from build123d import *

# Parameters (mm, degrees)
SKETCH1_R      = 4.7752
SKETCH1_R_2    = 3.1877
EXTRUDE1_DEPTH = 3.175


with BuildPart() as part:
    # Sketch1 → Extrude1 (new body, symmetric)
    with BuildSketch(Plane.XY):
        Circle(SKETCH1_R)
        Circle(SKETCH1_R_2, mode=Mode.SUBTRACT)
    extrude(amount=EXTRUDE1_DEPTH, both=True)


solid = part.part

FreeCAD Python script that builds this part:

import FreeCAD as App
import Part
import Sketcher

V = App.Vector
Q = App.Units.Quantity

doc = App.newDocument("Part")
body = doc.addObject("PartDesign::Body", "Body")

sketch1 = body.newObject("Sketcher::SketchObject", "Sketch")
sketch1.AttachmentSupport = (doc.getObject("XY_Plane"), [""])
sketch1.MapMode = "FlatFace"
sketch1.addGeometry([
    Part.Circle(V(0, 0, 0), V(0, 0, 1), 4.7752),
    Part.Circle(V(0, 0, 0), V(0, 0, 1), 3.1877),
], False)
sketch1.addConstraint([
    Sketcher.Constraint("Coincident", 0, 3, -1, 1),
    Sketcher.Constraint("Coincident", 1, 3, -1, 1),
    Sketcher.Constraint("Diameter", 0, Q("0.376 in")),
    Sketcher.Constraint("Diameter", 1, Q("0.251 in")),
])
pad1 = body.newObject("PartDesign::Pad", "Pad")
pad1.Profile = sketch1
pad1.Length = Q("0.25 in")
pad1.Midplane = True

doc.recompute()
